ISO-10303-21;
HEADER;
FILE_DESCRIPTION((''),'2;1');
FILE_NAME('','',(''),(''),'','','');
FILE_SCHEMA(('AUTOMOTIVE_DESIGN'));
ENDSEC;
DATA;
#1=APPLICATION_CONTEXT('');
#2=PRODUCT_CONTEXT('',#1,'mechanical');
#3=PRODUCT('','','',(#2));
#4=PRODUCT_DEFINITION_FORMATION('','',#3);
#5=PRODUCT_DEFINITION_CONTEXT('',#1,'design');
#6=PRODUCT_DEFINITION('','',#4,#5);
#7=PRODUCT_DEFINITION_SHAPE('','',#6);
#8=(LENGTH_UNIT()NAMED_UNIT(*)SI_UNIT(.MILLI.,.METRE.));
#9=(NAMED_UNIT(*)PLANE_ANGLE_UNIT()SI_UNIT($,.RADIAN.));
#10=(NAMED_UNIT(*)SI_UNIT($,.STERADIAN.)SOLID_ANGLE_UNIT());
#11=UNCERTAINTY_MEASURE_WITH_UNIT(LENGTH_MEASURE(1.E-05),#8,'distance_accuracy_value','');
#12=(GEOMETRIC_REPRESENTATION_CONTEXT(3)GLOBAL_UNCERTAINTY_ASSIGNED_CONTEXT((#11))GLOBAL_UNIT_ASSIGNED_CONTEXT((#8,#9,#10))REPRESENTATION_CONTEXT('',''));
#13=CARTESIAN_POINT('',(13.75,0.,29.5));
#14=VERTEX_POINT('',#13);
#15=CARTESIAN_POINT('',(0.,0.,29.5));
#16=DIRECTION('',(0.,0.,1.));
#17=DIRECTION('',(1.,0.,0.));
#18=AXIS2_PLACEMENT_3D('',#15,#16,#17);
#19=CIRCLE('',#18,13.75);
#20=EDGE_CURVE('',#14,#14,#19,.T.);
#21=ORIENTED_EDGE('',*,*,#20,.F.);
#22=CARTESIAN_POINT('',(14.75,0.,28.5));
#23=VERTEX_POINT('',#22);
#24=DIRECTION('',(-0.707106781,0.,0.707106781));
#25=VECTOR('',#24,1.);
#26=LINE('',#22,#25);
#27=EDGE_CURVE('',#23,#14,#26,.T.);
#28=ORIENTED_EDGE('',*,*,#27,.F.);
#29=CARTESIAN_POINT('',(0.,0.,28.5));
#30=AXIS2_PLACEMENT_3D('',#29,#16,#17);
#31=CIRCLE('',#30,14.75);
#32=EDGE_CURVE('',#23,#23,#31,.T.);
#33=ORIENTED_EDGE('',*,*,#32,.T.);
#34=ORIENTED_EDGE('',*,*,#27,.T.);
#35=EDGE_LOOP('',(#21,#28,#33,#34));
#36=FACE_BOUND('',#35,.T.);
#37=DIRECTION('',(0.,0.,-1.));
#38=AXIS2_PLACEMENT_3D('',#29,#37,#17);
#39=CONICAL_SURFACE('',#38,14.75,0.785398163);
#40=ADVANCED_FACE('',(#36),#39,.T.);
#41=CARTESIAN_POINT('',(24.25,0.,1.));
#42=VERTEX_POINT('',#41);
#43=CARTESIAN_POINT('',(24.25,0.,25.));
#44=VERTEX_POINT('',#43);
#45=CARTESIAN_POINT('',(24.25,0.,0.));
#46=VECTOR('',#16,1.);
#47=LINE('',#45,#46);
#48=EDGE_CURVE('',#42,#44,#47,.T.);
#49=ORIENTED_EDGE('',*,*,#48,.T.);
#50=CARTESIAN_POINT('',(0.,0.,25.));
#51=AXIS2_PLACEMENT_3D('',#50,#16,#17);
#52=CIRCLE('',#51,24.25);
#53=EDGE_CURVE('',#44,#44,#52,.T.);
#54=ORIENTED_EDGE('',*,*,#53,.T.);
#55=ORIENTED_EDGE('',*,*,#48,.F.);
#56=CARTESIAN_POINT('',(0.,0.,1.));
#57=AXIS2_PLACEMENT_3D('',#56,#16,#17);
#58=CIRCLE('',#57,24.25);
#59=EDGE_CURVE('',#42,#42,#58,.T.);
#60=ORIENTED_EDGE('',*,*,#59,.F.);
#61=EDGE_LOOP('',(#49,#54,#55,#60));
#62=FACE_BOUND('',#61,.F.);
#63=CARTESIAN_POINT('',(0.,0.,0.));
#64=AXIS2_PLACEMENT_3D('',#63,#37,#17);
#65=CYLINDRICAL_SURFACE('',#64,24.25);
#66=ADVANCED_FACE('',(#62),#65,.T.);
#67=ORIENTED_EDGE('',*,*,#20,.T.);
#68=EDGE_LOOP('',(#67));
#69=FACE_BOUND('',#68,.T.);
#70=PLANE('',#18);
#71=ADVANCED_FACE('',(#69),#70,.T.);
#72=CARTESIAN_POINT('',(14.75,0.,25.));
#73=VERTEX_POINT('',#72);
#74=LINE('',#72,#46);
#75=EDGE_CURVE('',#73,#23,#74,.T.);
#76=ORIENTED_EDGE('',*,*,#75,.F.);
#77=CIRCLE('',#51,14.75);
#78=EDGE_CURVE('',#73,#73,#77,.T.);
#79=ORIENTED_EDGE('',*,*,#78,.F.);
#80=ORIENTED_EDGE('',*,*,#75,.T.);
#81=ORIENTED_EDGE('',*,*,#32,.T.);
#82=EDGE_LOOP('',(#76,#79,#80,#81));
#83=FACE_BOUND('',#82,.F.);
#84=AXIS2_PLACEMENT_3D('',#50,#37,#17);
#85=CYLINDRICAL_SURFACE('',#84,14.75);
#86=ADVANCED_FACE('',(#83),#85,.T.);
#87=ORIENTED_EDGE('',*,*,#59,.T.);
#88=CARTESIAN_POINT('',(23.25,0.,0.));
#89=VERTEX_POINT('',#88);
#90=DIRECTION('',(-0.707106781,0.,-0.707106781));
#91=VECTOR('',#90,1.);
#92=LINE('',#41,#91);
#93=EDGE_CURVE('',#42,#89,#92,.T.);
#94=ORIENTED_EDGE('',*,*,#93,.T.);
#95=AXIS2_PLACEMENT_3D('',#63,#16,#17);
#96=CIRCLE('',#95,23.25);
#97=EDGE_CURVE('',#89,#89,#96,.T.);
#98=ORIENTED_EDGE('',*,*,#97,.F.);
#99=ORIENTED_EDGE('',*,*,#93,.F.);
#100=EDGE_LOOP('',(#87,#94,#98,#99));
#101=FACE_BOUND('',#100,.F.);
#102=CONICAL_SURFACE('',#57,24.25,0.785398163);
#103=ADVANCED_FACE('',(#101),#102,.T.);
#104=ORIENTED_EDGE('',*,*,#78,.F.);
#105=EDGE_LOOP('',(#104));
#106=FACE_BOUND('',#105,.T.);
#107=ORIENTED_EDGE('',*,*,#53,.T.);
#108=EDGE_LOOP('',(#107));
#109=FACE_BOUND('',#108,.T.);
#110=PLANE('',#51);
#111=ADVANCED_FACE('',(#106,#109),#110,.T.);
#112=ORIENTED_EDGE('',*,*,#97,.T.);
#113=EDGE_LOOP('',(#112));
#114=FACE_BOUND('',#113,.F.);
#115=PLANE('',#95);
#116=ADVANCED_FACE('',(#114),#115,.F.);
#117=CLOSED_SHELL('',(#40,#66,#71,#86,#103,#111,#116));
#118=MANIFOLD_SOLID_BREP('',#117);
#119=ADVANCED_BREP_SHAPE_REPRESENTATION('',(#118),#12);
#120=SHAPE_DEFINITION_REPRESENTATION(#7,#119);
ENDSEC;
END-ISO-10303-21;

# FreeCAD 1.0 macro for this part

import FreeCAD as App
import Part
import Sketcher
Q = App.Units.Quantity


def edges_at(feature, points):
    """Names of the edges that pass closest to the given points."""
    edges = feature.Shape.Edges
    near = lambda p: min(range(len(edges)), key=lambda i: edges[i].distToShape(Part.Vertex(*p))[0])
    return sorted({f"Edge{near(p) + 1}" for p in points})

doc = App.newDocument("Part")
body = doc.addObject("PartDesign::Body", "Body")

sketch1 = body.newObject("Sketcher::SketchObject", "Sketch")
sketch1.AttachmentSupport = (doc.getObject("XY_Plane"), [""])
sketch1.MapMode = "FlatFace"
sketch1.addGeometry(Part.Circle(App.Vector(0, 0, 0), App.Vector(0, 0, 1), 24), False)
sketch1.addConstraint(Sketcher.Constraint("Coincident", 0, 3, -1, 1))
sketch1.addConstraint(Sketcher.Constraint("Diameter", 0, Q("48.5 mm")))
pad1 = body.newObject("PartDesign::Pad", "Pad")
pad1.Profile = sketch1
pad1.Length = 25

sketch2 = body.newObject("Sketcher::SketchObject", "Sketch001")
sketch2.AttachmentSupport = (doc.getObject("XY_Plane"), [""])
sketch2.MapMode = "FlatFace"
sketch2.AttachmentOffset = App.Placement(App.Vector(0, 0, 25), App.Rotation())
sketch2.addGeometry(Part.Circle(App.Vector(0, 0, 0), App.Vector(0, 0, 1), 15), False)
sketch2.addConstraint(Sketcher.Constraint("Coincident", 0, 3, -1, 1))
sketch2.addConstraint(Sketcher.Constraint("Diameter", 0, Q("29.5 mm")))
pad2 = body.newObject("PartDesign::Pad", "Pad001")
pad2.Profile = sketch2
pad2.Length = 4.5
doc.recompute()

chamfer = body.newObject("PartDesign::Chamfer", "Chamfer")
chamfer.Base = (pad2, edges_at(pad2, [(-14.75, 0, 29.5), (-24.25, 0, 0)]))
chamfer.Size = 1

doc.recompute()
